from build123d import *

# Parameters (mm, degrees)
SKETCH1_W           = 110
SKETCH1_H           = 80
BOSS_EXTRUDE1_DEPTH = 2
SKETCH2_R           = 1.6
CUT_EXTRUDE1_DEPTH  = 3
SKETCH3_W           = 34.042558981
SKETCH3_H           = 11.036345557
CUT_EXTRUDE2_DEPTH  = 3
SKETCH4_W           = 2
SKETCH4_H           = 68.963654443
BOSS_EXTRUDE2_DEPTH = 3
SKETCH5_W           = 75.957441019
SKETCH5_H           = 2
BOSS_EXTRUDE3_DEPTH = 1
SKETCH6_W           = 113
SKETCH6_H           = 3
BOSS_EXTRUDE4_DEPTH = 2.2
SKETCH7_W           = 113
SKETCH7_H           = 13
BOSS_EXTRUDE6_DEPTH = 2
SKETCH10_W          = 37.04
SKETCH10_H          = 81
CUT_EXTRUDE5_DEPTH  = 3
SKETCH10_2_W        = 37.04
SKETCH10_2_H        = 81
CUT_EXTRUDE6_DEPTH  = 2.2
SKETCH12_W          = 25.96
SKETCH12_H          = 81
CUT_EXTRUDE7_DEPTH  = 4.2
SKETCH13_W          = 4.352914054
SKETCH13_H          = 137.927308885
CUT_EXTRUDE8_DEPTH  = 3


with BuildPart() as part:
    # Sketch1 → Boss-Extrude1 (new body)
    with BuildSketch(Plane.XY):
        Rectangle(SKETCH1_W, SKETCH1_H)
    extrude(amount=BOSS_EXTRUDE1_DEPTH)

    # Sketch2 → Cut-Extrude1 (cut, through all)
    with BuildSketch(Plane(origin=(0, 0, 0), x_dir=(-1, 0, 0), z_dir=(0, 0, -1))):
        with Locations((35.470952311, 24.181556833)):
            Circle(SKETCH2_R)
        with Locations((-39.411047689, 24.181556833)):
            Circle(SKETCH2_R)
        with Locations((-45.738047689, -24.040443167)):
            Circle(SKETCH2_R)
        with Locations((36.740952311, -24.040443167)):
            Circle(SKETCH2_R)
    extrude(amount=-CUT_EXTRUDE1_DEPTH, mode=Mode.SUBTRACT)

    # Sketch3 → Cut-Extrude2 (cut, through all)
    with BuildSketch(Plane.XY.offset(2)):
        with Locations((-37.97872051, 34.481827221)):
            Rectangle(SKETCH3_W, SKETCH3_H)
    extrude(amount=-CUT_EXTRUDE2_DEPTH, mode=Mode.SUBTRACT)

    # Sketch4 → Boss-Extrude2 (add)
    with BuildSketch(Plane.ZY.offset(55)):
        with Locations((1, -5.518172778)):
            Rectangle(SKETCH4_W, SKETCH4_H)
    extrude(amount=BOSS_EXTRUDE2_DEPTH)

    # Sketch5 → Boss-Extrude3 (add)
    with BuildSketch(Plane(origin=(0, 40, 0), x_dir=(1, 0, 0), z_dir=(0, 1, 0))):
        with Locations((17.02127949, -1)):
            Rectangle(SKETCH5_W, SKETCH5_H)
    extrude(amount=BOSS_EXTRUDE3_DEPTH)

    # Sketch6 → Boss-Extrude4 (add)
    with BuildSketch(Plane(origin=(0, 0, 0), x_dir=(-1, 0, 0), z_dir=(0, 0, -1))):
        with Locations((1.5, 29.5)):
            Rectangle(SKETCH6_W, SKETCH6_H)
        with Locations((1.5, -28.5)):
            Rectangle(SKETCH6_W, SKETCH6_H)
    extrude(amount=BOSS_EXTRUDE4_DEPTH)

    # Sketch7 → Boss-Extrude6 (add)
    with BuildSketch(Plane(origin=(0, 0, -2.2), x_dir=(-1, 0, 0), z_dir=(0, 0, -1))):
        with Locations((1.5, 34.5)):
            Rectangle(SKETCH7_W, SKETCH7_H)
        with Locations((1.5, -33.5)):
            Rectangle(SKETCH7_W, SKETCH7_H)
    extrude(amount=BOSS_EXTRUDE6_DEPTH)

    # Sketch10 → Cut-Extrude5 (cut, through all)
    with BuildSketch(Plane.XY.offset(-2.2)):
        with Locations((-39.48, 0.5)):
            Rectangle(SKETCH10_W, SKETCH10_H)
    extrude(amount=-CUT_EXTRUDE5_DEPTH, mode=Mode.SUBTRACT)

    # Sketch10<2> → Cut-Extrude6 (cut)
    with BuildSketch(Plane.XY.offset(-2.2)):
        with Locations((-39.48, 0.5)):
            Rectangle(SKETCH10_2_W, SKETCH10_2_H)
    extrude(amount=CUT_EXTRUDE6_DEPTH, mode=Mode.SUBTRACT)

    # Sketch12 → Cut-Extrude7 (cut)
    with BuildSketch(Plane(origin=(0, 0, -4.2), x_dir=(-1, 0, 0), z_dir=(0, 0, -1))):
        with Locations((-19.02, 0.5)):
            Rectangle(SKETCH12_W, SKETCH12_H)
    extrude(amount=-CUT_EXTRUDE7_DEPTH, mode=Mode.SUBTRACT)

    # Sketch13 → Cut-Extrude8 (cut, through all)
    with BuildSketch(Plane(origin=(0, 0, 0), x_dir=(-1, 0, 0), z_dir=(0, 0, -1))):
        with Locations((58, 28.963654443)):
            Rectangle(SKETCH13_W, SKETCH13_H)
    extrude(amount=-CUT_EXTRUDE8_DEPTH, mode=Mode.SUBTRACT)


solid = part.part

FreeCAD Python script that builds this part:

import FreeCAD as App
import Part
import Sketcher
from FreeCAD import Vector


def add_polygon(sketch, points):
    """Adds a closed chain of lines whose ends are joined by coincident constraints."""
    first, n = sketch.GeometryCount, len(points)
    for a, b in zip(points, points[1:] + points[:1]):
        sketch.addGeometry(Part.LineSegment(App.Vector(*a, 0), App.Vector(*b, 0)), False)
    for i in range(n):
        sketch.addConstraint(Sketcher.Constraint("Coincident", first + i, 2, first + (i + 1) % n, 1))

doc = App.newDocument("Part")
body = doc.addObject("PartDesign::Body", "Body")

# Sketch on XY plane
sketch1 = doc.addObject("Sketcher::SketchObject", "Sketch")
body.addObject(sketch1)
sketch1.AttachmentSupport = (doc.XY_Plane, [""])
sketch1.MapMode = "FlatFace"
add_polygon(sketch1, [(-55, 40), (-55, -40), (55, -40), (55, 40)])  # lines 0-3
sketch1.addConstraint(Sketcher.Constraint("Vertical", 0))
sketch1.addConstraint(Sketcher.Constraint("Horizontal", 1))
sketch1.addConstraint(Sketcher.Constraint("Vertical", 2))
sketch1.addConstraint(Sketcher.Constraint("Horizontal", 3))
sketch1.addConstraint(Sketcher.Constraint("Symmetric", 0, 2, 2, 2, -1, 1))
sketch1.addConstraint(Sketcher.Constraint("DistanceX", 1, 1, 1, 2, 110.0))
sketch1.addConstraint(Sketcher.Constraint("DistanceY", 0, 2, 0, 1, 80.0))
pad1 = doc.addObject("PartDesign::Pad", "Pad")
body.addObject(pad1)
pad1.Profile = sketch1
pad1.Length = 2

# Sketch on XY plane
sketch2 = doc.addObject("Sketcher::SketchObject", "Sketch001")
body.addObject(sketch2)
sketch2.AttachmentSupport = (doc.XY_Plane, [""])
sketch2.MapMode = "FlatFace"
sketch2.addGeometry(Part.Circle(Vector(-35.5, 24.2, 0), Vector(0, 0, 1), 1.6), False)
sketch2.addGeometry(Part.Circle(Vector(39.4, 24.2, 0), Vector(0, 0, 1), 1.6), False)
sketch2.addGeometry(Part.Circle(Vector(45.7, -24, 0), Vector(0, 0, 1), 1.6), False)
sketch2.addGeometry(Part.Circle(Vector(-36.7, -24, 0), Vector(0, 0, 1), 1.6), False)
sketch2.addConstraint(Sketcher.Constraint("Equal", 0, 1))
sketch2.addConstraint(Sketcher.Constraint("Equal", 1, 2))
sketch2.addConstraint(Sketcher.Constraint("Equal", 2, 3))
sketch2.addConstraint(Sketcher.Constraint("Horizontal", 0, 3, 1, 3))
sketch2.addConstraint(Sketcher.Constraint("Horizontal", 2, 3, 3, 3))
sketch2.addConstraint(Sketcher.Constraint("Diameter", 0, 3.2))
sketch2.addConstraint(Sketcher.Constraint("DistanceX", 3, 3, 0, 3, 1.27))
sketch2.addConstraint(Sketcher.Constraint("DistanceX", 0, 3, 1, 3, 74.882))
sketch2.addConstraint(Sketcher.Constraint("DistanceX", 1, 3, 2, 3, 6.327))
sketch2.addConstraint(Sketcher.Constraint("DistanceY", 2, 3, 1, 3, 48.222))
sketch2.addConstraint(Sketcher.Constraint("DistanceX", 0, 3, -1, 1, 35.470952))
sketch2.addConstraint(Sketcher.Constraint("DistanceY", -1, 1, 0, 3, 24.181557))
pocket1 = doc.addObject("PartDesign::Pocket", "Pocket")
body.addObject(pocket1)
pocket1.Profile = sketch2
pocket1.Type = "ThroughAll"
pocket1.Reversed = True

# Sketch on XY plane
sketch3 = doc.addObject("Sketcher::SketchObject", "Sketch002")
body.addObject(sketch3)
sketch3.AttachmentSupport = (doc.XY_Plane, [""])
sketch3.MapMode = "FlatFace"
sketch3.AttachmentOffset = App.Placement(Vector(0, 0, 2), App.Rotation())
add_polygon(sketch3, [(-55, 40), (-55, 29), (-21, 29), (-21, 40)])  # lines 0-3
sketch3.addConstraint(Sketcher.Constraint("Vertical", 0))
sketch3.addConstraint(Sketcher.Constraint("Horizontal", 1))
sketch3.addConstraint(Sketcher.Constraint("Vertical", 2))
sketch3.addConstraint(Sketcher.Constraint("Horizontal", 3))
sketch3.addConstraint(Sketcher.Constraint("DistanceX", 0, 2, -1, 1, 55.0))
sketch3.addConstraint(Sketcher.Constraint("DistanceY", -1, 1, 2, 2, 40.0))
sketch3.addConstraint(Sketcher.Constraint("DistanceX", 1, 1, 1, 2, 34.042559))
sketch3.addConstraint(Sketcher.Constraint("DistanceY", 0, 2, 0, 1, 11.036346))
pocket2 = doc.addObject("PartDesign::Pocket", "Pocket001")
body.addObject(pocket2)
pocket2.Profile = sketch3
pocket2.Type = "ThroughAll"

# Sketch on YZ plane
sketch4 = doc.addObject("Sketcher::SketchObject", "Sketch003")
body.addObject(sketch4)
sketch4.AttachmentSupport = (doc.YZ_Plane, [""])
sketch4.MapMode = "FlatFace"
sketch4.AttachmentOffset = App.Placement(Vector(0, 0, -55), App.Rotation())
add_polygon(sketch4, [(29, 0), (-40, 0), (-40, 2), (29, 2)])  # lines 0-3
sketch4.addConstraint(Sketcher.Constraint("Horizontal", 0))
sketch4.addConstraint(Sketcher.Constraint("Vertical", 1))
sketch4.addConstraint(Sketcher.Constraint("Horizontal", 2))
sketch4.addConstraint(Sketcher.Constraint("Vertical", 3))
sketch4.addConstraint(Sketcher.Constraint("PointOnObject", 0, 2, -1))
sketch4.addConstraint(Sketcher.Constraint("DistanceY", 1, 1, 1, 2, 2.0))
sketch4.addConstraint(Sketcher.Constraint("DistanceX", 0, 2, -1, 1, 40.0))
sketch4.addConstraint(Sketcher.Constraint("DistanceX", 0, 2, 0, 1, 68.963654))
pad2 = doc.addObject("PartDesign::Pad", "Pad001")
body.addObject(pad2)
pad2.Profile = sketch4
pad2.Length = 3
pad2.Reversed = True

# Sketch on XZ plane
sketch5 = doc.addObject("Sketcher::SketchObject", "Sketch004")
body.addObject(sketch5)
sketch5.AttachmentSupport = (doc.XZ_Plane, [""])
sketch5.MapMode = "FlatFace"
sketch5.AttachmentOffset = App.Placement(Vector(0, 0, -40), App.Rotation())
add_polygon(sketch5, [(-21, 0), (-21, 2), (55, 2), (55, 0)])  # lines 0-3
sketch5.addConstraint(Sketcher.Constraint("Vertical", 0))
sketch5.addConstraint(Sketcher.Constraint("Horizontal", 1))
sketch5.addConstraint(Sketcher.Constraint("Vertical", 2))
sketch5.addConstraint(Sketcher.Constraint("Horizontal", 3))
sketch5.addConstraint(Sketcher.Constraint("PointOnObject", 2, 2, -1))
sketch5.addConstraint(Sketcher.Constraint("DistanceY", 0, 1, 0, 2, 2.0))
sketch5.addConstraint(Sketcher.Constraint("DistanceX", -1, 1, 1, 2, 55.0))
sketch5.addConstraint(Sketcher.Constraint("DistanceX", 1, 1, 1, 2, 75.957441))
pad3 = doc.addObject("PartDesign::Pad", "Pad002")
body.addObject(pad3)
pad3.Profile = sketch5
pad3.Length = 1
pad3.Reversed = True

# Sketch on XY plane
sketch6 = doc.addObject("Sketcher::SketchObject", "Sketch005")
body.addObject(sketch6)
sketch6.AttachmentSupport = (doc.XY_Plane, [""])
sketch6.MapMode = "FlatFace"
add_polygon(sketch6, [(55, 31), (55, 28), (-58, 28), (-58, 31)])  # lines 0-3
add_polygon(sketch6, [(55, -27), (55, -30), (-58, -30), (-58, -27)])  # lines 4-7
sketch6.addConstraint(Sketcher.Constraint("Vertical", 0))
sketch6.addConstraint(Sketcher.Constraint("Horizontal", 1))
sketch6.addConstraint(Sketcher.Constraint("Vertical", 2))
sketch6.addConstraint(Sketcher.Constraint("Horizontal", 3))
sketch6.addConstraint(Sketcher.Constraint("Vertical", 4))
sketch6.addConstraint(Sketcher.Constraint("Horizontal", 5))
sketch6.addConstraint(Sketcher.Constraint("Vertical", 6))
sketch6.addConstraint(Sketcher.Constraint("Horizontal", 7))
sketch6.addConstraint(Sketcher.Constraint("Vertical", 3, 2, 4, 2))
sketch6.addConstraint(Sketcher.Constraint("Vertical", 2, 2, 5, 2))
sketch6.addConstraint(Sketcher.Constraint("Equal", 2, 4))
sketch6.addConstraint(Sketcher.Constraint("DistanceX", 1, 2, 1, 1, 113.0))
sketch6.addConstraint(Sketcher.Constraint("DistanceY", 0, 2, 0, 1, 3.0))
sketch6.addConstraint(Sketcher.Constraint("DistanceX", -1, 1, 0, 2, 55.0))
sketch6.addConstraint(Sketcher.Constraint("DistanceY", -1, 1, 0, 2, 28.0))
sketch6.addConstraint(Sketcher.Constraint("DistanceY", 4, 2, -1, 1, 30.0))
pad4 = doc.addObject("PartDesign::Pad", "Pad003")
body.addObject(pad4)
pad4.Profile = sketch6
pad4.Length = 2.2
pad4.Reversed = True

# Sketch on XY plane
sketch7 = doc.addObject("Sketcher::SketchObject", "Sketch006")
body.addObject(sketch7)
sketch7.AttachmentSupport = (doc.XY_Plane, [""])
sketch7.MapMode = "FlatFace"
sketch7.AttachmentOffset = App.Placement(Vector(0, 0, -2.2), App.Rotation())
add_polygon(sketch7, [(55, 41), (55, 28), (-58, 28), (-58, 41)])  # lines 0-3
add_polygon(sketch7, [(55, -27), (55, -40), (-58, -40), (-58, -27)])  # lines 4-7
sketch7.addConstraint(Sketcher.Constraint("Vertical", 0))
sketch7.addConstraint(Sketcher.Constraint("Horizontal", 1))
sketch7.addConstraint(Sketcher.Constraint("Vertical", 2))
sketch7.addConstraint(Sketcher.Constraint("Horizontal", 3))
sketch7.addConstraint(Sketcher.Constraint("Vertical", 4))
sketch7.addConstraint(Sketcher.Constraint("Horizontal", 5))
sketch7.addConstraint(Sketcher.Constraint("Vertical", 6))
sketch7.addConstraint(Sketcher.Constraint("Horizontal", 7))
sketch7.addConstraint(Sketcher.Constraint("Vertical", 3, 2, 4, 2))
sketch7.addConstraint(Sketcher.Constraint("Vertical", 2, 2, 5, 2))
sketch7.addConstraint(Sketcher.Constraint("Equal", 2, 4))
sketch7.addConstraint(Sketcher.Constraint("DistanceX", 1, 2, 1, 1, 113.0))
sketch7.addConstraint(Sketcher.Constraint("DistanceY", 0, 2, 0, 1, 13.0))
sketch7.addConstraint(Sketcher.Constraint("DistanceX", -1, 1, 0, 2, 55.0))
sketch7.addConstraint(Sketcher.Constraint("DistanceY", -1, 1, 0, 2, 28.0))
sketch7.addConstraint(Sketcher.Constraint("DistanceY", 4, 2, -1, 1, 40.0))
pad5 = doc.addObject("PartDesign::Pad", "Pad004")
body.addObject(pad5)
pad5.Profile = sketch7
pad5.Length = 2
pad5.Reversed = True

# Sketch on XY plane
sketch8 = doc.addObject("Sketcher::SketchObject", "Sketch007")
body.addObject(sketch8)
sketch8.AttachmentSupport = (doc.XY_Plane, [""])
sketch8.MapMode = "FlatFace"
sketch8.AttachmentOffset = App.Placement(Vector(0, 0, -2.2), App.Rotation())
add_polygon(sketch8, [(-58, 41), (-58, -40), (-21, -40), (-21, 41)])  # lines 0-3
sketch8.addConstraint(Sketcher.Constraint("Vertical", 0))
sketch8.addConstraint(Sketcher.Constraint("Horizontal", 1))
sketch8.addConstraint(Sketcher.Constraint("Vertical", 2))
sketch8.addConstraint(Sketcher.Constraint("Horizontal", 3))
sketch8.addConstraint(Sketcher.Constraint("DistanceY", 0, 2, 0, 1, 81.0))
sketch8.addConstraint(Sketcher.Constraint("DistanceX", 0, 2, -1, 1, 58.0))
sketch8.addConstraint(Sketcher.Constraint("DistanceY", 0, 2, -1, 1, 40.0))
sketch8.addConstraint(Sketcher.Constraint("DistanceX", 1, 1, 1, 2, 37.04))
pocket3 = doc.addObject("PartDesign::Pocket", "Pocket002")
body.addObject(pocket3)
pocket3.Profile = sketch8
pocket3.Type = "ThroughAll"

# Sketch on XY plane
sketch9 = doc.addObject("Sketcher::SketchObject", "Sketch008")
body.addObject(sketch9)
sketch9.AttachmentSupport = (doc.XY_Plane, [""])
sketch9.MapMode = "FlatFace"
sketch9.AttachmentOffset = App.Placement(Vector(0, 0, -2.2), App.Rotation())
add_polygon(sketch9, [(-58, 41), (-58, -40), (-21, -40), (-21, 41)])  # lines 0-3
sketch9.addConstraint(Sketcher.Constraint("Vertical", 0))
sketch9.addConstraint(Sketcher.Constraint("Horizontal", 1))
sketch9.addConstraint(Sketcher.Constraint("Vertical", 2))
sketch9.addConstraint(Sketcher.Constraint("Horizontal", 3))
sketch9.addConstraint(Sketcher.Constraint("DistanceY", 0, 2, 0, 1, 81.0))
sketch9.addConstraint(Sketcher.Constraint("DistanceX", 0, 2, -1, 1, 58.0))
sketch9.addConstraint(Sketcher.Constraint("DistanceY", 0, 2, -1, 1, 40.0))
sketch9.addConstraint(Sketcher.Constraint("DistanceX", 1, 1, 1, 2, 37.04))
pocket4 = doc.addObject("PartDesign::Pocket", "Pocket003")
body.addObject(pocket4)
pocket4.Profile = sketch9
pocket4.Length = 2.2
pocket4.Reversed = True

# Sketch on XY plane
sketch10 = doc.addObject("Sketcher::SketchObject", "Sketch009")
body.addObject(sketch10)
sketch10.AttachmentSupport = (doc.XY_Plane, [""])
sketch10.MapMode = "FlatFace"
sketch10.AttachmentOffset = App.Placement(Vector(0, 0, -4.2), App.Rotation())
add_polygon(sketch10, [(32, 41), (32, -40), (6, -40), (6, 41)])  # lines 0-3
sketch10.addConstraint(Sketcher.Constraint("Vertical", 0))
sketch10.addConstraint(Sketcher.Constraint("Horizontal", 1))
sketch10.addConstraint(Sketcher.Constraint("Vertical", 2))
sketch10.addConstraint(Sketcher.Constraint("Horizontal", 3))
sketch10.addConstraint(Sketcher.Constraint("DistanceY", 0, 2, 0, 1, 81.0))
sketch10.addConstraint(Sketcher.Constraint("DistanceX", -1, 1, 0, 2, 32.0))
sketch10.addConstraint(Sketcher.Constraint("DistanceY", 0, 2, -1, 1, 40.0))
sketch10.addConstraint(Sketcher.Constraint("DistanceX", 1, 2, 1, 1, 25.96))
pocket5 = doc.addObject("PartDesign::Pocket", "Pocket004")
body.addObject(pocket5)
pocket5.Profile = sketch10
pocket5.Length = 4.2
pocket5.Reversed = True

# Sketch on XY plane
sketch11 = doc.addObject("Sketcher::SketchObject", "Sketch010")
body.addObject(sketch11)
sketch11.AttachmentSupport = (doc.XY_Plane, [""])
sketch11.MapMode = "FlatFace"
add_polygon(sketch11, [(-55.8, 97.9), (-55.8, -40), (-60.2, -40), (-60.2, 97.9)])  # lines 0-3
sketch11.addConstraint(Sketcher.Constraint("Vertical", 0))
sketch11.addConstraint(Sketcher.Constraint("Horizontal", 1))
sketch11.addConstraint(Sketcher.Constraint("Vertical", 2))
sketch11.addConstraint(Sketcher.Constraint("Horizontal", 3))
sketch11.addConstraint(Sketcher.Constraint("DistanceY", 0, 2, -1, 1, 40.0))
sketch11.addConstraint(Sketcher.Constraint("DistanceY", 0, 2, 0, 1, 137.927309))
sketch11.addConstraint(Sketcher.Constraint("DistanceX", 1, 2, 1, 1, 4.352914))
sketch11.addConstraint(Sketcher.Constraint("DistanceX", 0, 2, -1, 1, 55.823543))
pocket6 = doc.addObject("PartDesign::Pocket", "Pocket005")
body.addObject(pocket6)
pocket6.Profile = sketch11
pocket6.Type = "ThroughAll"
pocket6.Reversed = True

doc.recompute()
